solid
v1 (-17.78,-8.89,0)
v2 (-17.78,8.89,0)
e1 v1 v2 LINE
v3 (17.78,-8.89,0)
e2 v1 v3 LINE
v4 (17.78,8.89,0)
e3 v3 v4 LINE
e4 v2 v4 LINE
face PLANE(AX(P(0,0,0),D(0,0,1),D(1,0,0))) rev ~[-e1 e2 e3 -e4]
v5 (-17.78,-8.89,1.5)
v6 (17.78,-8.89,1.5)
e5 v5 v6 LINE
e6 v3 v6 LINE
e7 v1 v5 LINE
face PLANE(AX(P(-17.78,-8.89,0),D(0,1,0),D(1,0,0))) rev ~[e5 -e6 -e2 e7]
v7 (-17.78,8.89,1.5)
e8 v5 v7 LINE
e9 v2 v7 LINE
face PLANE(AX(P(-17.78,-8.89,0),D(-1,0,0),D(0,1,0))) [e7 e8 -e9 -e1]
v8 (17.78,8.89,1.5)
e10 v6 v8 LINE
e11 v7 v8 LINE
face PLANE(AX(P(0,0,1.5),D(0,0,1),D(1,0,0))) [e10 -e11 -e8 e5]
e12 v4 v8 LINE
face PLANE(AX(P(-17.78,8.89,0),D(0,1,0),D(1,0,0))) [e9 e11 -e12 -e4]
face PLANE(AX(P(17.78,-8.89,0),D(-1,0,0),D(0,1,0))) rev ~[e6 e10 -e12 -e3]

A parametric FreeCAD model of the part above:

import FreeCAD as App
import Part
import Sketcher
from FreeCAD import Vector
Q = App.Units.Quantity

doc = App.newDocument("Part")
body = doc.addObject("PartDesign::Body", "Body")

# Sketch on XY plane
sketch1 = body.newObject("Sketcher::SketchObject", "Sketch")
sketch1.AttachmentSupport = (doc.getObject("XY_Plane"), [""])
sketch1.MapMode = "FlatFace"
sketch1.addGeometry([
    Part.LineSegment(Vector(-18, 9, 0), Vector(-18, -9, 0)),
    Part.LineSegment(Vector(-18, -9, 0), Vector(18, -9, 0)),
    Part.LineSegment(Vector(18, -9, 0), Vector(18, 9, 0)),
    Part.LineSegment(Vector(18, 9, 0), Vector(-18, 9, 0)),
], False)
sketch1.addConstraint([
    Sketcher.Constraint("Coincident", 0, 2, 1, 1),
    Sketcher.Constraint("Coincident", 1, 2, 2, 1),
    Sketcher.Constraint("Coincident", 2, 2, 3, 1),
    Sketcher.Constraint("Coincident", 3, 2, 0, 1),
    Sketcher.Constraint("Vertical", 0),
    Sketcher.Constraint("Horizontal", 1),
    Sketcher.Constraint("Vertical", 2),
    Sketcher.Constraint("Horizontal", 3),
    Sketcher.Constraint("Symmetric", 0, 2, 2, 2, -1, 1),
    Sketcher.Constraint("DistanceX", 1, 1, 1, 2, Q("1.4 in")),
    Sketcher.Constraint("DistanceY", 0, 2, 0, 1, Q("0.7 in")),
])
pad1 = body.newObject("PartDesign::Pad", "Pad")
pad1.Profile = sketch1
pad1.Length = 1.5

doc.recompute()
